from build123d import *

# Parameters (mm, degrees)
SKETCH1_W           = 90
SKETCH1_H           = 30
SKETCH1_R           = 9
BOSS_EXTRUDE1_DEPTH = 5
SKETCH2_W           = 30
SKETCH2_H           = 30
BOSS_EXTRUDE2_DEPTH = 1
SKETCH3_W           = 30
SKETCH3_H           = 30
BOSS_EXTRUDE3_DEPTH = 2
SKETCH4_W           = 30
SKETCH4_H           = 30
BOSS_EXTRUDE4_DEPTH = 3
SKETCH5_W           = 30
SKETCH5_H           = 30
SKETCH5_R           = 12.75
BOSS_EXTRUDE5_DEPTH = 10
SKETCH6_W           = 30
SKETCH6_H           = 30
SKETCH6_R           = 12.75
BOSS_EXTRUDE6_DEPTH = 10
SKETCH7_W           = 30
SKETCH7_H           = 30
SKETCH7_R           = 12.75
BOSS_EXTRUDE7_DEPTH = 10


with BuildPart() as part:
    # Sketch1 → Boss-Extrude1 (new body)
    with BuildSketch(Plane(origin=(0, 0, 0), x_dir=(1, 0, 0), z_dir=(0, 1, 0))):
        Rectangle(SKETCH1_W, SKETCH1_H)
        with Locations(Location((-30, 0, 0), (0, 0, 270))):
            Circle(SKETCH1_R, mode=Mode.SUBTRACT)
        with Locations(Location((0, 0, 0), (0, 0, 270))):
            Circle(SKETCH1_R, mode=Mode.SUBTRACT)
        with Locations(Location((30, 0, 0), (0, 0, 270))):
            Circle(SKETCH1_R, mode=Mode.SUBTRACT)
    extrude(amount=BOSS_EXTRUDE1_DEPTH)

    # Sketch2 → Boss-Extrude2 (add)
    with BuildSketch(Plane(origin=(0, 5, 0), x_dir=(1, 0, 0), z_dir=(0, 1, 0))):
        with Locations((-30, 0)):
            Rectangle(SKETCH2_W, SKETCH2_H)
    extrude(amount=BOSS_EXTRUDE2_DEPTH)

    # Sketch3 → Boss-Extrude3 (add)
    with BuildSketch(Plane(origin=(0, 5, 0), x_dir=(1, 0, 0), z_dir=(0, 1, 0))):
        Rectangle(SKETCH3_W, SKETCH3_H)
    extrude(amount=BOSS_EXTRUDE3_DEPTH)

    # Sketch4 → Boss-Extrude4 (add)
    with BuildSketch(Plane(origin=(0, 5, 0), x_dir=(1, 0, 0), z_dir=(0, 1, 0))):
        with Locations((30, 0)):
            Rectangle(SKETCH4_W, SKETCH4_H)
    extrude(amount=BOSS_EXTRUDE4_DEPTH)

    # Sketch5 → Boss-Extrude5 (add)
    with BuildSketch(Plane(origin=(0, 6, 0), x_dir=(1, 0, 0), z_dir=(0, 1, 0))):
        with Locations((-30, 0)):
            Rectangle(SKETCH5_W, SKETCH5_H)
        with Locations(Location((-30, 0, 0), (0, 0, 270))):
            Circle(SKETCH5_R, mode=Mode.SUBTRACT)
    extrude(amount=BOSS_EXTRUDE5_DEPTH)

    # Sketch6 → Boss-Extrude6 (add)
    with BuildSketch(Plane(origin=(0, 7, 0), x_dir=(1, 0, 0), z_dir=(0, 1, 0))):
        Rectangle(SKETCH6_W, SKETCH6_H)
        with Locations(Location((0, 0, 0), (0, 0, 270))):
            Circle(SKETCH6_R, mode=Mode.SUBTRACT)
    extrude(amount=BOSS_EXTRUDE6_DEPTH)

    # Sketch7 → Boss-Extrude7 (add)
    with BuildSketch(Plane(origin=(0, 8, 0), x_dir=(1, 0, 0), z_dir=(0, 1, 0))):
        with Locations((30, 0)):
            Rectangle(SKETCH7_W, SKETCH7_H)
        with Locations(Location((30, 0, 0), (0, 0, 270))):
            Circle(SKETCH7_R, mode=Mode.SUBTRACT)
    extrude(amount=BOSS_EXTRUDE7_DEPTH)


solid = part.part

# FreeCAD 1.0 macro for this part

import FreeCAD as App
import Part
import Sketcher
from FreeCAD import Vector
Q = App.Units.Quantity


def add_polygon(sketch, points):
    """Adds a closed chain of lines whose ends are joined by coincident constraints."""
    first, n = sketch.GeometryCount, len(points)
    for a, b in zip(points, points[1:] + points[:1]):
        sketch.addGeometry(Part.LineSegment(App.Vector(*a, 0), App.Vector(*b, 0)), False)
    for i in range(n):
        sketch.addConstraint(Sketcher.Constraint("Coincident", first + i, 2, first + (i + 1) % n, 1))

doc = App.newDocument("Part")
body = doc.addObject("PartDesign::Body", "Body")

# Sketch on XZ plane
sketch1 = doc.addObject("Sketcher::SketchObject", "Sketch")
body.addObject(sketch1)
sketch1.AttachmentSupport = (doc.XZ_Plane, [""])
sketch1.MapMode = "FlatFace"
add_polygon(sketch1, [(-45, -15), (-45, 15), (45, 15), (45, -15)])  # lines 0-3
sketch1.addGeometry(Part.Circle(Vector(-30, 0, 0), Vector(0, 0, 1), 9), False)  # 4
sketch1.addGeometry(Part.Circle(Vector(0, 0, 0), Vector(0, 0, 1), 9), False)  # 5
sketch1.addGeometry(Part.Circle(Vector(30, 0, 0), Vector(0, 0, 1), 9), False)  # 6
sketch1.addConstraint([
    Sketcher.Constraint("Vertical", 0),
    Sketcher.Constraint("Horizontal", 1),
    Sketcher.Constraint("Vertical", 2),
    Sketcher.Constraint("Horizontal", 3),
    Sketcher.Constraint("Coincident", 5, 3, -1, 1),
    Sketcher.Constraint("Equal", 4, 5),
    Sketcher.Constraint("Equal", 5, 6),
    Sketcher.Constraint("Symmetric", 4, 3, 6, 3, -1, 1),
    Sketcher.Constraint("Symmetric", 0, 2, 2, 2, -1, 1),
    Sketcher.Constraint("PointOnObject", 4, 3, -1),
    Sketcher.Constraint("Diameter", 4, Q("18 mm")),
    Sketcher.Constraint("DistanceX", 1, 1, 1, 2, Q("90 mm")),
    Sketcher.Constraint("DistanceY", 0, 1, 0, 2, Q("30 mm")),
    Sketcher.Constraint("DistanceX", 4, 3, -1, 1, Q("30 mm")),
])
pad1 = doc.addObject("PartDesign::Pad", "Pad")
body.addObject(pad1)
pad1.Profile = sketch1
pad1.Length = 5
pad1.Reversed = True

# Sketch on XZ plane
sketch2 = doc.addObject("Sketcher::SketchObject", "Sketch001")
body.addObject(sketch2)
sketch2.AttachmentSupport = (doc.XZ_Plane, [""])
sketch2.MapMode = "FlatFace"
sketch2.AttachmentOffset = App.Placement(Vector(0, 0, -5), App.Rotation())
add_polygon(sketch2, [(-45, -15), (-45, 15), (-15, 15), (-15, -15)])  # lines 0-3
sketch2.addConstraint([
    Sketcher.Constraint("Vertical", 0),
    Sketcher.Constraint("Horizontal", 1),
    Sketcher.Constraint("Vertical", 2),
    Sketcher.Constraint("Horizontal", 3),
    Sketcher.Constraint("Equal", 3, 0),
    Sketcher.Constraint("DistanceX", 1, 1, 1, 2, Q("30 mm")),
    Sketcher.Constraint("DistanceX", 0, 2, -1, 1, Q("45 mm")),
    Sketcher.Constraint("DistanceY", -1, 1, 0, 2, Q("15 mm")),
])
pad2 = doc.addObject("PartDesign::Pad", "Pad001")
body.addObject(pad2)
pad2.Profile = sketch2
pad2.Length = 1
pad2.Reversed = True

# Sketch on XZ plane
sketch3 = doc.addObject("Sketcher::SketchObject", "Sketch002")
body.addObject(sketch3)
sketch3.AttachmentSupport = (doc.XZ_Plane, [""])
sketch3.MapMode = "FlatFace"
sketch3.AttachmentOffset = App.Placement(Vector(0, 0, -5), App.Rotation())
add_polygon(sketch3, [(-15, -15), (-15, 15), (15, 15), (15, -15)])  # lines 0-3
sketch3.addConstraint([
    Sketcher.Constraint("Vertical", 0),
    Sketcher.Constraint("Horizontal", 1),
    Sketcher.Constraint("Vertical", 2),
    Sketcher.Constraint("Horizontal", 3),
    Sketcher.Constraint("Symmetric", 0, 2, 2, 2, -1, 1),
    Sketcher.Constraint("Equal", 3, 0),
    Sketcher.Constraint("DistanceX", 1, 1, 1, 2, Q("30 mm")),
])
pad3 = doc.addObject("PartDesign::Pad", "Pad002")
body.addObject(pad3)
pad3.Profile = sketch3
pad3.Length = 2
pad3.Reversed = True

# Sketch on XZ plane
sketch4 = doc.addObject("Sketcher::SketchObject", "Sketch003")
body.addObject(sketch4)
sketch4.AttachmentSupport = (doc.XZ_Plane, [""])
sketch4.MapMode = "FlatFace"
sketch4.AttachmentOffset = App.Placement(Vector(0, 0, -5), App.Rotation())
add_polygon(sketch4, [(15, -15), (15, 15), (45, 15), (45, -15)])  # lines 0-3
sketch4.addConstraint([
    Sketcher.Constraint("Vertical", 0),
    Sketcher.Constraint("Horizontal", 1),
    Sketcher.Constraint("Vertical", 2),
    Sketcher.Constraint("Horizontal", 3),
    Sketcher.Constraint("Equal", 3, 0),
    Sketcher.Constraint("DistanceX", 1, 1, 1, 2, Q("30 mm")),
    Sketcher.Constraint("DistanceX", -1, 1, 0, 2, Q("15 mm")),
    Sketcher.Constraint("DistanceY", -1, 1, 0, 2, Q("15 mm")),
])
pad4 = doc.addObject("PartDesign::Pad", "Pad003")
body.addObject(pad4)
pad4.Profile = sketch4
pad4.Length = 3
pad4.Reversed = True

# Sketch on XZ plane
sketch5 = doc.addObject("Sketcher::SketchObject", "Sketch004")
body.addObject(sketch5)
sketch5.AttachmentSupport = (doc.XZ_Plane, [""])
sketch5.MapMode = "FlatFace"
sketch5.AttachmentOffset = App.Placement(Vector(0, 0, -6), App.Rotation())
add_polygon(sketch5, [(-45, -15), (-45, 15), (-15, 15), (-15, -15)])  # lines 0-3
sketch5.addGeometry(Part.Circle(Vector(-30, 0, 0), Vector(0, 0, 1), 13), False)  # 4
sketch5.addConstraint([
    Sketcher.Constraint("Vertical", 0),
    Sketcher.Constraint("Horizontal", 1),
    Sketcher.Constraint("Vertical", 2),
    Sketcher.Constraint("Horizontal", 3),
    Sketcher.Constraint("PointOnObject", 4, 3, -1),
    Sketcher.Constraint("Equal", 3, 0),
    Sketcher.Constraint("Diameter", 4, Q("25.5 mm")),
    Sketcher.Constraint("DistanceX", 1, 1, 1, 2, Q("30 mm")),
    Sketcher.Constraint("DistanceX", 4, 3, -1, 1, Q("30 mm")),
    Sketcher.Constraint("DistanceX", 0, 2, -1, 1, Q("45 mm")),
    Sketcher.Constraint("DistanceY", -1, 1, 0, 2, Q("15 mm")),
])
pad5 = doc.addObject("PartDesign::Pad", "Pad004")
body.addObject(pad5)
pad5.Profile = sketch5
pad5.Length = 10
pad5.Reversed = True

# Sketch on XZ plane
sketch6 = doc.addObject("Sketcher::SketchObject", "Sketch005")
body.addObject(sketch6)
sketch6.AttachmentSupport = (doc.XZ_Plane, [""])
sketch6.MapMode = "FlatFace"
sketch6.AttachmentOffset = App.Placement(Vector(0, 0, -7), App.Rotation())
add_polygon(sketch6, [(-15, -15), (-15, 15), (15, 15), (15, -15)])  # lines 0-3
sketch6.addGeometry(Part.Circle(Vector(0, 0, 0), Vector(0, 0, 1), 13), False)  # 4
sketch6.addConstraint([
    Sketcher.Constraint("Vertical", 0),
    Sketcher.Constraint("Horizontal", 1),
    Sketcher.Constraint("Vertical", 2),
    Sketcher.Constraint("Horizontal", 3),
    Sketcher.Constraint("Coincident", 4, 3, -1, 1),
    Sketcher.Constraint("Symmetric", 0, 2, 2, 2, -1, 1),
    Sketcher.Constraint("Equal", 3, 0),
    Sketcher.Constraint("Diameter", 4, Q("25.5 mm")),
    Sketcher.Constraint("DistanceX", 1, 1, 1, 2, Q("30 mm")),
])
pad6 = doc.addObject("PartDesign::Pad", "Pad005")
body.addObject(pad6)
pad6.Profile = sketch6
pad6.Length = 10
pad6.Reversed = True

# Sketch on XZ plane
sketch7 = doc.addObject("Sketcher::SketchObject", "Sketch006")
body.addObject(sketch7)
sketch7.AttachmentSupport = (doc.XZ_Plane, [""])
sketch7.MapMode = "FlatFace"
sketch7.AttachmentOffset = App.Placement(Vector(0, 0, -8), App.Rotation())
add_polygon(sketch7, [(15, -15), (15, 15), (45, 15), (45, -15)])  # lines 0-3
sketch7.addGeometry(Part.Circle(Vector(30, 0, 0), Vector(0, 0, 1), 13), False)  # 4
sketch7.addConstraint([
    Sketcher.Constraint("Vertical", 0),
    Sketcher.Constraint("Horizontal", 1),
    Sketcher.Constraint("Vertical", 2),
    Sketcher.Constraint("Horizontal", 3),
    Sketcher.Constraint("PointOnObject", 4, 3, -1),
    Sketcher.Constraint("Equal", 3, 0),
    Sketcher.Constraint("Diameter", 4, Q("25.5 mm")),
    Sketcher.Constraint("DistanceX", 1, 1, 1, 2, Q("30 mm")),
    Sketcher.Constraint("DistanceX", -1, 1, 4, 3, Q("30 mm")),
    Sketcher.Constraint("DistanceX", -1, 1, 0, 2, Q("15 mm")),
    Sketcher.Constraint("DistanceY", -1, 1, 0, 2, Q("15 mm")),
])
pad7 = doc.addObject("PartDesign::Pad", "Pad006")
body.addObject(pad7)
pad7.Profile = sketch7
pad7.Length = 10
pad7.Reversed = True

doc.recompute()
